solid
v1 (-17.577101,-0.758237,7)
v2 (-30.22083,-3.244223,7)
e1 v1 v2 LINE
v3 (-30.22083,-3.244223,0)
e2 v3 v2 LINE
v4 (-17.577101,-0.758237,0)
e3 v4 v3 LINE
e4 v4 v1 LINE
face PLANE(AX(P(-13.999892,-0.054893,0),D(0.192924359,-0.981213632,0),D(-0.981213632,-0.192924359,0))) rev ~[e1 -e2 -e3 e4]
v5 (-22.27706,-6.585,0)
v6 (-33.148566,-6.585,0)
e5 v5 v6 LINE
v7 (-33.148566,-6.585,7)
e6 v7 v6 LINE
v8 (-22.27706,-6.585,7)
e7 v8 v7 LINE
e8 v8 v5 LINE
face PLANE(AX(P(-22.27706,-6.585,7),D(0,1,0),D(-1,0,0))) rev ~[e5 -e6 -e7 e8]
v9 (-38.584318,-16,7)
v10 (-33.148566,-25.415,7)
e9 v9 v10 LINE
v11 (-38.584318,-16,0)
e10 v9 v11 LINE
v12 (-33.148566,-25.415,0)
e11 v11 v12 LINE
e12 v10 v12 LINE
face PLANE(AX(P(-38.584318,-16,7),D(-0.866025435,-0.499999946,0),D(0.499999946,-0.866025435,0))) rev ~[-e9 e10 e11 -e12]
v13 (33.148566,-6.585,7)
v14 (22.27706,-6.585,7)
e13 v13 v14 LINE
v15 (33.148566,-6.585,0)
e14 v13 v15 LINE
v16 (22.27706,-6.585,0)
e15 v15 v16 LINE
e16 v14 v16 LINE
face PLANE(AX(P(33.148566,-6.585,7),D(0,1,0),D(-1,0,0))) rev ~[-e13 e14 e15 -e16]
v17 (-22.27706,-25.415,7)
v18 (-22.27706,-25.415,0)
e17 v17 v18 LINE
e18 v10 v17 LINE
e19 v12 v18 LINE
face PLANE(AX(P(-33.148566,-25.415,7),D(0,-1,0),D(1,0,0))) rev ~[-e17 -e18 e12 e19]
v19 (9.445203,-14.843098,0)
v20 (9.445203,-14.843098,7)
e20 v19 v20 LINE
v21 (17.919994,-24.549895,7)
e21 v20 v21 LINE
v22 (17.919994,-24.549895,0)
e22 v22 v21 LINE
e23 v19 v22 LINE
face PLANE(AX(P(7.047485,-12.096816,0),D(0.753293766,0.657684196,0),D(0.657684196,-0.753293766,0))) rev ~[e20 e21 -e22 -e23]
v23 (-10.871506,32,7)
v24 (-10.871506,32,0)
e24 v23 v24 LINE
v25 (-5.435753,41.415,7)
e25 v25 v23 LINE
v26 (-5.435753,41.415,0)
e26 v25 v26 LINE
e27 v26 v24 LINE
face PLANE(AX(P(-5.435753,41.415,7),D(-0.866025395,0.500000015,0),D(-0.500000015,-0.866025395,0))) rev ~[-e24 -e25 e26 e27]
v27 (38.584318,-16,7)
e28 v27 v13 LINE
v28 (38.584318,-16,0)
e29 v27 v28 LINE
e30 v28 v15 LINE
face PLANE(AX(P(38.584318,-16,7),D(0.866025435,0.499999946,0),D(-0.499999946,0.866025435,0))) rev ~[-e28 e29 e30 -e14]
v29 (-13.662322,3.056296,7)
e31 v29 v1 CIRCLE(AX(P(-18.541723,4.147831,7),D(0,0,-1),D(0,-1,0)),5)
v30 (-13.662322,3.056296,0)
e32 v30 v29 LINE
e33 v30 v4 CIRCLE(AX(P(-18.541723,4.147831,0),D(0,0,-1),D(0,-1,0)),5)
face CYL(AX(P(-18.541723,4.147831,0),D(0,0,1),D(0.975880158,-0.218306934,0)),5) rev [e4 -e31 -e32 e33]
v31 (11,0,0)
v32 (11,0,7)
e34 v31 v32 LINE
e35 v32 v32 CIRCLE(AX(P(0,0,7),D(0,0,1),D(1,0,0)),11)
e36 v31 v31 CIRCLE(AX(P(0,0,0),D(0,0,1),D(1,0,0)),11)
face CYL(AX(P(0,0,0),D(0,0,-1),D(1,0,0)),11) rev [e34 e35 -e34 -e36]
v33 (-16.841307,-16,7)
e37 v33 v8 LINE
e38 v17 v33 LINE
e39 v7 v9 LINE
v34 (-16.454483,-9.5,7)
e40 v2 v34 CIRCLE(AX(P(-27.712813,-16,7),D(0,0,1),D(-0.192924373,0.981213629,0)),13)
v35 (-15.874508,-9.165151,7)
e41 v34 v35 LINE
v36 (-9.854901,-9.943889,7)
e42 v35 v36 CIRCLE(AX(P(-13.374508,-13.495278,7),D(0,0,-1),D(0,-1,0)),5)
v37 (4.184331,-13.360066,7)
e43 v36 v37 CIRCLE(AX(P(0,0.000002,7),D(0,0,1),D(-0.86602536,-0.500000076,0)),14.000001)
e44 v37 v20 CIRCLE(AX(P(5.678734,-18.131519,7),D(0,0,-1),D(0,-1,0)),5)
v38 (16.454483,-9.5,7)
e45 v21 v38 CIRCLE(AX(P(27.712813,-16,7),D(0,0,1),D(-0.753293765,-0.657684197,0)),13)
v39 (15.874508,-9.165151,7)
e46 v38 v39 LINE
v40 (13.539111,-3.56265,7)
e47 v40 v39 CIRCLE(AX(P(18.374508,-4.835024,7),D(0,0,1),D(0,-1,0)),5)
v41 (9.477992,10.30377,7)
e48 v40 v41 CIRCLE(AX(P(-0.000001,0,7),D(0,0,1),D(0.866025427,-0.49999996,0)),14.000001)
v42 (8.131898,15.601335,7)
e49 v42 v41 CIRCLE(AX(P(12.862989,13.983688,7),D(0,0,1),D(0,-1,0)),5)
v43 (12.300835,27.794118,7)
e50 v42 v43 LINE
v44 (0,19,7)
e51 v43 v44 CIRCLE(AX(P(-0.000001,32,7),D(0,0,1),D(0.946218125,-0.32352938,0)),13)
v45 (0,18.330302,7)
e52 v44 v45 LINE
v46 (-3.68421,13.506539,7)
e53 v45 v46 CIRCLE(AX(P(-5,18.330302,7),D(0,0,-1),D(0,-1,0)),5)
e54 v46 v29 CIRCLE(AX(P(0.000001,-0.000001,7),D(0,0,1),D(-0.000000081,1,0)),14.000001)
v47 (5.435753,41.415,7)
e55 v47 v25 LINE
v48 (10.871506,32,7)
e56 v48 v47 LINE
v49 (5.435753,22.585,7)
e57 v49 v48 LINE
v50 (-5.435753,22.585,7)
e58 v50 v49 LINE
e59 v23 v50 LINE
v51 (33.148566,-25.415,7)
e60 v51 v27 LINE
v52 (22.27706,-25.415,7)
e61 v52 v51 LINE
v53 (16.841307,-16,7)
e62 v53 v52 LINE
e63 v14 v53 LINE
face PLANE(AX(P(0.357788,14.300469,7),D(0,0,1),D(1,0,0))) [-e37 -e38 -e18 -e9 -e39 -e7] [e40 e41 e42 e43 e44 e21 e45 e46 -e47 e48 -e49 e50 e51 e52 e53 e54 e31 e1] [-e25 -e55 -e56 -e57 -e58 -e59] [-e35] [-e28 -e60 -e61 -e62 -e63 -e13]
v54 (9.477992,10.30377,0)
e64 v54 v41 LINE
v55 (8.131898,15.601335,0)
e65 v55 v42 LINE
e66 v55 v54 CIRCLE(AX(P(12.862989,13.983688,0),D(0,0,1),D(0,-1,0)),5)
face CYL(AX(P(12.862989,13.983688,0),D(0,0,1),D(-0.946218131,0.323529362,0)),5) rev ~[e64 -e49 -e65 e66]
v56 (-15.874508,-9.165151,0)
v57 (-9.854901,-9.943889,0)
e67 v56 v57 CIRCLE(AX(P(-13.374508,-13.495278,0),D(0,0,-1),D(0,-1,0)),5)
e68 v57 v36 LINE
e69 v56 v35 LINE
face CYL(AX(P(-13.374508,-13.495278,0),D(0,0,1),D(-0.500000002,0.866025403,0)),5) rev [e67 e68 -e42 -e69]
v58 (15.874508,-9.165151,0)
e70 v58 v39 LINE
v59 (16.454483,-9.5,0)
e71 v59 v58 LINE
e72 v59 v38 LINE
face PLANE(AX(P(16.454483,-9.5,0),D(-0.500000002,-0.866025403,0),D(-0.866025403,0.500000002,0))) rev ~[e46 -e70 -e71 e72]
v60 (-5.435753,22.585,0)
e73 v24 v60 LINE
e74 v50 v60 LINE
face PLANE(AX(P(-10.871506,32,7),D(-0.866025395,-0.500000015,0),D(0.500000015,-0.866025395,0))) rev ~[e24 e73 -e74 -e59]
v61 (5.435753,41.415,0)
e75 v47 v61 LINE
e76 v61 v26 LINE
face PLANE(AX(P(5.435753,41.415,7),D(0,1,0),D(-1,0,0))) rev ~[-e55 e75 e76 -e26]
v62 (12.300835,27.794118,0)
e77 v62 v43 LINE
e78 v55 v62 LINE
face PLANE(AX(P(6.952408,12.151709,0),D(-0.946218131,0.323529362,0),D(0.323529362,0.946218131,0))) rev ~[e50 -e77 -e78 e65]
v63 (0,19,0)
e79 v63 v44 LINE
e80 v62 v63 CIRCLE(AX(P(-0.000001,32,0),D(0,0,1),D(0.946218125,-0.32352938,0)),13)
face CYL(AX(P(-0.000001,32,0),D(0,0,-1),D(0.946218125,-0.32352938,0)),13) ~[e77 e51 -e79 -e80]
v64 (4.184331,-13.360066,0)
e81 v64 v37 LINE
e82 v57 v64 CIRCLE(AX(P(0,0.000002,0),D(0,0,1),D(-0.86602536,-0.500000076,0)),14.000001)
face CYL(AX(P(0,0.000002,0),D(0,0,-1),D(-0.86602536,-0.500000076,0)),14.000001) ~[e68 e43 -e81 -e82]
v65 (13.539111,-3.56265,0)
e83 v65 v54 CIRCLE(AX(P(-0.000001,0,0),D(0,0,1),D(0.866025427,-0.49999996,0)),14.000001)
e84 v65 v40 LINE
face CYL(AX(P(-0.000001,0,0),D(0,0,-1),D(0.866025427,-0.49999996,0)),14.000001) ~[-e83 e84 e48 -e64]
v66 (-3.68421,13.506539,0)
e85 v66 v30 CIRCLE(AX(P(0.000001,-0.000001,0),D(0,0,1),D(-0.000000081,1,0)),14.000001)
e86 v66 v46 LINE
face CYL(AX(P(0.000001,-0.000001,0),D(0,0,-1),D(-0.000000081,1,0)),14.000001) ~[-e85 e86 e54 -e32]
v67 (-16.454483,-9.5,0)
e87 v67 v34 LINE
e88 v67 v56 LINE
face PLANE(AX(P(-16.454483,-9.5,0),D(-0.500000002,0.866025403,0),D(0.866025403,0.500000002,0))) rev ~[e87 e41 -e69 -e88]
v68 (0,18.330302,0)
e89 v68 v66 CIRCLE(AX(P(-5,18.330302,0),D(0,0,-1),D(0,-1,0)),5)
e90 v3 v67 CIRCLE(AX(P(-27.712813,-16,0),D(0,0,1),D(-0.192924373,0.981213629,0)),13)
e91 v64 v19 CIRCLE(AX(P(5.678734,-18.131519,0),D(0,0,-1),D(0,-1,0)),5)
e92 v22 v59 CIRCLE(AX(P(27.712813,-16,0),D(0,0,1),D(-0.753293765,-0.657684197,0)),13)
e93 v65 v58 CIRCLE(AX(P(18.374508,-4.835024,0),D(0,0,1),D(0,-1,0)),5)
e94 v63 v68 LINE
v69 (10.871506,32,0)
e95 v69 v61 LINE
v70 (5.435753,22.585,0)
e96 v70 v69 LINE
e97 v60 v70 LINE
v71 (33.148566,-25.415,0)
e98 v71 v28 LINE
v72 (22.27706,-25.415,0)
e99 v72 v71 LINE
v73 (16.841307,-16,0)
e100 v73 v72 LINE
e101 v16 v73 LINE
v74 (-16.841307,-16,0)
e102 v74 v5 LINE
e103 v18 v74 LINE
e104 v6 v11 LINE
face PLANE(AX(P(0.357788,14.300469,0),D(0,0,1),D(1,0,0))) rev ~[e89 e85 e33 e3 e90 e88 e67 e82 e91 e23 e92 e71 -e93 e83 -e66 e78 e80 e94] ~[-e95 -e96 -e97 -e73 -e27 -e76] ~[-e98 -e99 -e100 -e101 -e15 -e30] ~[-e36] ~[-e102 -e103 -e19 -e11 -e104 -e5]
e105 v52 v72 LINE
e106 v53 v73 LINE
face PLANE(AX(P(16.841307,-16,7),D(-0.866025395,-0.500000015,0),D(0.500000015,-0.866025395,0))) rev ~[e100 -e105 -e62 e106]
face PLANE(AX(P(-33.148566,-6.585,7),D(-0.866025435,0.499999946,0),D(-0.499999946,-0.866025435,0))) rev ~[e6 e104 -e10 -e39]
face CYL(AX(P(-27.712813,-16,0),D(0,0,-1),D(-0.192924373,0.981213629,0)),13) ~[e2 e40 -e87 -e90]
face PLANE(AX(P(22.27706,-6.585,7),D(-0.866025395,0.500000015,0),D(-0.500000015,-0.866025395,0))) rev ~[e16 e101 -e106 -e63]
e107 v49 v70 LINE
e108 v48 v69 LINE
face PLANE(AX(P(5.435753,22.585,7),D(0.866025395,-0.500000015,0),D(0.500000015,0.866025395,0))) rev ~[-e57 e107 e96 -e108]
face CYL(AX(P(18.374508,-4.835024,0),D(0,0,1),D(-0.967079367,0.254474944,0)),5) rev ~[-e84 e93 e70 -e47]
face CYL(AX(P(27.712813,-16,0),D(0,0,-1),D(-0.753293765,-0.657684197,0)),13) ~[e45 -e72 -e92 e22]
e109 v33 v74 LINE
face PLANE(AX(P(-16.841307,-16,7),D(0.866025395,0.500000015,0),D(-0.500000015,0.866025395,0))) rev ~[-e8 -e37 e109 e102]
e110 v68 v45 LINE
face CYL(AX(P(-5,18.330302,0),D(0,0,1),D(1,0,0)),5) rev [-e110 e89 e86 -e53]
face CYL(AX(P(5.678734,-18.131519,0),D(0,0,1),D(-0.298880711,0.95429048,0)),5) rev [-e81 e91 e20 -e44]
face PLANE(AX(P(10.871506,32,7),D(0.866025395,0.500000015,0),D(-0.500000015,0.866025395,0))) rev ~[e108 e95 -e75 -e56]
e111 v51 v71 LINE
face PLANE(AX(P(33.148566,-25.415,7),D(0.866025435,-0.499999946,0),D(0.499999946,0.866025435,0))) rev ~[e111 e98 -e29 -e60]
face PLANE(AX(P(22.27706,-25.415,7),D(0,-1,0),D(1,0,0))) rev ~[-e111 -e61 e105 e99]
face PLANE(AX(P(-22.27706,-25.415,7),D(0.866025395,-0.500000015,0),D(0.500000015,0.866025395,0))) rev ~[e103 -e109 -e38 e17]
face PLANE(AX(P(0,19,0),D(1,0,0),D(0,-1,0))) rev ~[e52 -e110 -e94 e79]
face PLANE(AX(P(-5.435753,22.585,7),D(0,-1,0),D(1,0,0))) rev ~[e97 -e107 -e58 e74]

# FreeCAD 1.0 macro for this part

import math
import FreeCAD as App
import Part
import Sketcher

V = App.Vector
Q = App.Units.Quantity


def edges_at(feature, points):
    """Names of the edges that pass closest to the given points."""
    edges = feature.Shape.Edges
    near = lambda p: min(range(len(edges)), key=lambda i: edges[i].distToShape(Part.Vertex(*p))[0])
    return sorted({f"Edge{near(p) + 1}" for p in points})


def add_polygon(sketch, points):
    """Adds a closed chain of lines whose ends are joined by coincident constraints."""
    first, n = sketch.GeometryCount, len(points)
    for a, b in zip(points, points[1:] + points[:1]):
        sketch.addGeometry(Part.LineSegment(App.Vector(*a, 0), App.Vector(*b, 0)), False)
    for i in range(n):
        sketch.addConstraint(Sketcher.Constraint("Coincident", first + i, 2, first + (i + 1) % n, 1))

doc = App.newDocument("Part")
body = doc.addObject("PartDesign::Body", "Body")

# Sketch on XY plane
sketch1 = body.newObject("Sketcher::SketchObject", "Sketch")
sketch1.AttachmentSupport = (doc.getObject("XY_Plane"), [""])
sketch1.MapMode = "FlatFace"
sketch1.addGeometry([
    Part.LineSegment(V(0, 19, 0), V(0, 14, 0)),  # 0
    Part.ArcOfCircle(Part.Circle(V(0, 0, 0), V(0, 0, 1), 14), math.radians(90), math.radians(180)),  # 1
    Part.LineSegment(V(-14, -0.1, 0), V(-30.2, -3.2, 0)),  # 2
    Part.ArcOfCircle(Part.Circle(V(-27.7, -16, 0), V(0, 0, 1), 13), math.radians(101), math.radians(390)),  # 3
    Part.LineSegment(V(-16.5, -9.5, 0), V(-12.1, -7, 0)),  # 4
    Part.ArcOfCircle(Part.Circle(V(0, 0, 0), V(0, 0, 1), 14), math.radians(-150), math.radians(-60)),  # 5
    Part.LineSegment(V(7, -12.1, 0), V(17.9, -24.5, 0)),  # 6
    Part.ArcOfCircle(Part.Circle(V(27.7, -16, 0), V(0, 0, 1), 13), math.radians(-139), math.radians(150)),  # 7
    Part.LineSegment(V(16.5, -9.5, 0), V(12.1, -7, 0)),  # 8
    Part.ArcOfCircle(Part.Circle(V(0, 0, 0), V(0, 0, 1), 14), math.radians(-30), math.radians(60)),  # 9
    Part.LineSegment(V(7, 12.2, 0), V(12.3, 27.8, 0)),  # 10
    Part.ArcOfCircle(Part.Circle(V(0, 32, 0), V(0, 0, 1), 13), math.radians(-19), math.radians(270)),  # 11
    Part.Circle(V(0, 0, 0), V(0, 0, 1), 11),  # 12
], False)
sketch1.addConstraint([
    Sketcher.Constraint("Coincident", 0, 2, 1, 1),
    Sketcher.Constraint("Coincident", 1, 2, 2, 1),
    Sketcher.Constraint("Tangent", 2, 2, 3, 1),
    Sketcher.Constraint("Coincident", 3, 2, 4, 1),
    Sketcher.Constraint("Coincident", 4, 2, 5, 1),
    Sketcher.Constraint("Coincident", 5, 2, 6, 1),
    Sketcher.Constraint("Tangent", 6, 2, 7, 1),
    Sketcher.Constraint("Coincident", 7, 2, 8, 1),
    Sketcher.Constraint("Coincident", 8, 2, 9, 1),
    Sketcher.Constraint("Coincident", 9, 2, 10, 1),
    Sketcher.Constraint("Tangent", 10, 2, 11, 1),
    Sketcher.Constraint("Coincident", 11, 2, 0, 1),
    Sketcher.Constraint("Vertical", 0),
    Sketcher.Constraint("Coincident", 1, 3, -1, 1),
    Sketcher.Constraint("Coincident", 5, 3, -1, 1),
    Sketcher.Constraint("Coincident", 9, 3, -1, 1),
    Sketcher.Constraint("Coincident", 12, 3, -1, 1),
    Sketcher.Constraint("Equal", 1, 5),
    Sketcher.Constraint("Equal", 3, 7),
    Sketcher.Constraint("Equal", 5, 9),
    Sketcher.Constraint("Equal", 7, 11),
    Sketcher.Constraint("Symmetric", 3, 3, 7, 3, -2),
    Sketcher.Constraint("PointOnObject", 11, 3, -2),
    Sketcher.Constraint("PointOnObject", 0, 2, -2),
    Sketcher.Constraint("Horizontal", 3, 2, 7, 2),
    Sketcher.Constraint("Horizontal", 4, 2, 8, 2),
    Sketcher.Constraint("Equal", 2, 6),
    Sketcher.Constraint("Equal", 6, 10),
    Sketcher.Constraint("Diameter", 12, Q("22 mm")),
    Sketcher.Constraint("Radius", 1, Q("14.000001 mm")),
    Sketcher.Constraint("Radius", 3, Q("13 mm")),
    Sketcher.Constraint("DistanceY", 0, 2, 0, 1, Q("5 mm")),
    Sketcher.Constraint("Angle", 4, Q("30 deg")),
    Sketcher.Constraint("Distance", 4, Q("5 mm")),
    Sketcher.Constraint("DistanceY", 3, 3, -1, 1, Q("16 mm")),
    Sketcher.Constraint("DistanceY", 4, 2, -1, 1, Q("7 mm")),
    Sketcher.Constraint("DistanceX", 5, 2, 7, 2, Q("9.406998 mm")),
])
pad1 = body.newObject("PartDesign::Pad", "Pad")
pad1.Profile = sketch1
pad1.Length = 7

# Sketch on XY plane
sketch2 = body.newObject("Sketcher::SketchObject", "Sketch001")
sketch2.AttachmentSupport = (doc.getObject("XY_Plane"), [""])
sketch2.MapMode = "FlatFace"
sketch2.AttachmentOffset = App.Placement(V(0, 0, 7), App.Rotation())
add_polygon(sketch2, [(5, 41), (-5, 41), (-11, 32), (-5, 23), (5, 23), (11, 32)])  # lines 0-5
add_polygon(sketch2, [(17, -16), (22, -25), (33, -25), (39, -16), (33, -7), (22, -7)])  # lines 6-11
add_polygon(sketch2, [(-22, -7), (-33, -7), (-39, -16), (-33, -25), (-22, -25), (-17, -16)])  # lines 12-17
sketch2.addConstraint([
    Sketcher.Constraint("Horizontal", 0),
    Sketcher.Constraint("Horizontal", 3),
    Sketcher.Constraint("Horizontal", 7),
    Sketcher.Constraint("Horizontal", 10),
    Sketcher.Constraint("Horizontal", 12),
    Sketcher.Constraint("Horizontal", 15),
    Sketcher.Constraint("Symmetric", 1, 2, 4, 2, -2),
    Sketcher.Constraint("Symmetric", 9, 2, 12, 2, -2),
    Sketcher.Constraint("Symmetric", 8, 2, 13, 2, -2),
    Sketcher.Constraint("Symmetric", 7, 2, 14, 2, -2),
    Sketcher.Constraint("Symmetric", 11, 2, 16, 2, -2),
    Sketcher.Constraint("Parallel", 1, 4),
    Sketcher.Constraint("Parallel", 2, 5),
    Sketcher.Constraint("Parallel", 5, 6),
    Sketcher.Constraint("Parallel", 4, 8),
    Sketcher.Constraint("Parallel", 6, 9),
    Sketcher.Constraint("Parallel", 8, 11),
    Sketcher.Constraint("Parallel", 11, 13),
    Sketcher.Constraint("Parallel", 13, 16),
    Sketcher.Constraint("Parallel", 14, 17),
    Sketcher.Constraint("Horizontal", 8, 2, 11, 2),
    Sketcher.Constraint("Vertical", 0, 2, 2, 2),
    Sketcher.Constraint("Vertical", 7, 2, 9, 2),
    Sketcher.Constraint("Equal", 3, 7),
    Sketcher.Constraint("Equal", 5, 6),
    Sketcher.Constraint("Angle", 1, Q("-120.000001 deg")),
    Sketcher.Constraint("DistanceY", -1, 1, 1, 2, Q("32 mm")),
    Sketcher.Constraint("DistanceY", 8, 2, -1, 1, Q("16 mm")),
    Sketcher.Constraint("DistanceY", 2, 2, 0, 2, Q("18.83 mm")),
    Sketcher.Constraint("DistanceX", 0, 2, 0, 1, Q("10.871506 mm")),
    Sketcher.Constraint("DistanceX", -1, 1, 6, 2, Q("22.27706 mm")),
])
pocket1 = body.newObject("PartDesign::Pocket", "Pocket")
pocket1.Profile = sketch2
pocket1.Length = 25
doc.recompute()

fillet = body.newObject("PartDesign::Fillet", "Fillet")
fillet.Base = (pocket1, edges_at(pocket1, [
    (6.952, 12.152, 3.5),
    (12.124, -7, 3.5),
    (7.047, -12.097, 3.5),
    (-12.124, -7, 3.5),
    (-14, -0.055, 3.5),
    (0, 14, 3.5),
]))
fillet.Radius = 5

doc.recompute()
